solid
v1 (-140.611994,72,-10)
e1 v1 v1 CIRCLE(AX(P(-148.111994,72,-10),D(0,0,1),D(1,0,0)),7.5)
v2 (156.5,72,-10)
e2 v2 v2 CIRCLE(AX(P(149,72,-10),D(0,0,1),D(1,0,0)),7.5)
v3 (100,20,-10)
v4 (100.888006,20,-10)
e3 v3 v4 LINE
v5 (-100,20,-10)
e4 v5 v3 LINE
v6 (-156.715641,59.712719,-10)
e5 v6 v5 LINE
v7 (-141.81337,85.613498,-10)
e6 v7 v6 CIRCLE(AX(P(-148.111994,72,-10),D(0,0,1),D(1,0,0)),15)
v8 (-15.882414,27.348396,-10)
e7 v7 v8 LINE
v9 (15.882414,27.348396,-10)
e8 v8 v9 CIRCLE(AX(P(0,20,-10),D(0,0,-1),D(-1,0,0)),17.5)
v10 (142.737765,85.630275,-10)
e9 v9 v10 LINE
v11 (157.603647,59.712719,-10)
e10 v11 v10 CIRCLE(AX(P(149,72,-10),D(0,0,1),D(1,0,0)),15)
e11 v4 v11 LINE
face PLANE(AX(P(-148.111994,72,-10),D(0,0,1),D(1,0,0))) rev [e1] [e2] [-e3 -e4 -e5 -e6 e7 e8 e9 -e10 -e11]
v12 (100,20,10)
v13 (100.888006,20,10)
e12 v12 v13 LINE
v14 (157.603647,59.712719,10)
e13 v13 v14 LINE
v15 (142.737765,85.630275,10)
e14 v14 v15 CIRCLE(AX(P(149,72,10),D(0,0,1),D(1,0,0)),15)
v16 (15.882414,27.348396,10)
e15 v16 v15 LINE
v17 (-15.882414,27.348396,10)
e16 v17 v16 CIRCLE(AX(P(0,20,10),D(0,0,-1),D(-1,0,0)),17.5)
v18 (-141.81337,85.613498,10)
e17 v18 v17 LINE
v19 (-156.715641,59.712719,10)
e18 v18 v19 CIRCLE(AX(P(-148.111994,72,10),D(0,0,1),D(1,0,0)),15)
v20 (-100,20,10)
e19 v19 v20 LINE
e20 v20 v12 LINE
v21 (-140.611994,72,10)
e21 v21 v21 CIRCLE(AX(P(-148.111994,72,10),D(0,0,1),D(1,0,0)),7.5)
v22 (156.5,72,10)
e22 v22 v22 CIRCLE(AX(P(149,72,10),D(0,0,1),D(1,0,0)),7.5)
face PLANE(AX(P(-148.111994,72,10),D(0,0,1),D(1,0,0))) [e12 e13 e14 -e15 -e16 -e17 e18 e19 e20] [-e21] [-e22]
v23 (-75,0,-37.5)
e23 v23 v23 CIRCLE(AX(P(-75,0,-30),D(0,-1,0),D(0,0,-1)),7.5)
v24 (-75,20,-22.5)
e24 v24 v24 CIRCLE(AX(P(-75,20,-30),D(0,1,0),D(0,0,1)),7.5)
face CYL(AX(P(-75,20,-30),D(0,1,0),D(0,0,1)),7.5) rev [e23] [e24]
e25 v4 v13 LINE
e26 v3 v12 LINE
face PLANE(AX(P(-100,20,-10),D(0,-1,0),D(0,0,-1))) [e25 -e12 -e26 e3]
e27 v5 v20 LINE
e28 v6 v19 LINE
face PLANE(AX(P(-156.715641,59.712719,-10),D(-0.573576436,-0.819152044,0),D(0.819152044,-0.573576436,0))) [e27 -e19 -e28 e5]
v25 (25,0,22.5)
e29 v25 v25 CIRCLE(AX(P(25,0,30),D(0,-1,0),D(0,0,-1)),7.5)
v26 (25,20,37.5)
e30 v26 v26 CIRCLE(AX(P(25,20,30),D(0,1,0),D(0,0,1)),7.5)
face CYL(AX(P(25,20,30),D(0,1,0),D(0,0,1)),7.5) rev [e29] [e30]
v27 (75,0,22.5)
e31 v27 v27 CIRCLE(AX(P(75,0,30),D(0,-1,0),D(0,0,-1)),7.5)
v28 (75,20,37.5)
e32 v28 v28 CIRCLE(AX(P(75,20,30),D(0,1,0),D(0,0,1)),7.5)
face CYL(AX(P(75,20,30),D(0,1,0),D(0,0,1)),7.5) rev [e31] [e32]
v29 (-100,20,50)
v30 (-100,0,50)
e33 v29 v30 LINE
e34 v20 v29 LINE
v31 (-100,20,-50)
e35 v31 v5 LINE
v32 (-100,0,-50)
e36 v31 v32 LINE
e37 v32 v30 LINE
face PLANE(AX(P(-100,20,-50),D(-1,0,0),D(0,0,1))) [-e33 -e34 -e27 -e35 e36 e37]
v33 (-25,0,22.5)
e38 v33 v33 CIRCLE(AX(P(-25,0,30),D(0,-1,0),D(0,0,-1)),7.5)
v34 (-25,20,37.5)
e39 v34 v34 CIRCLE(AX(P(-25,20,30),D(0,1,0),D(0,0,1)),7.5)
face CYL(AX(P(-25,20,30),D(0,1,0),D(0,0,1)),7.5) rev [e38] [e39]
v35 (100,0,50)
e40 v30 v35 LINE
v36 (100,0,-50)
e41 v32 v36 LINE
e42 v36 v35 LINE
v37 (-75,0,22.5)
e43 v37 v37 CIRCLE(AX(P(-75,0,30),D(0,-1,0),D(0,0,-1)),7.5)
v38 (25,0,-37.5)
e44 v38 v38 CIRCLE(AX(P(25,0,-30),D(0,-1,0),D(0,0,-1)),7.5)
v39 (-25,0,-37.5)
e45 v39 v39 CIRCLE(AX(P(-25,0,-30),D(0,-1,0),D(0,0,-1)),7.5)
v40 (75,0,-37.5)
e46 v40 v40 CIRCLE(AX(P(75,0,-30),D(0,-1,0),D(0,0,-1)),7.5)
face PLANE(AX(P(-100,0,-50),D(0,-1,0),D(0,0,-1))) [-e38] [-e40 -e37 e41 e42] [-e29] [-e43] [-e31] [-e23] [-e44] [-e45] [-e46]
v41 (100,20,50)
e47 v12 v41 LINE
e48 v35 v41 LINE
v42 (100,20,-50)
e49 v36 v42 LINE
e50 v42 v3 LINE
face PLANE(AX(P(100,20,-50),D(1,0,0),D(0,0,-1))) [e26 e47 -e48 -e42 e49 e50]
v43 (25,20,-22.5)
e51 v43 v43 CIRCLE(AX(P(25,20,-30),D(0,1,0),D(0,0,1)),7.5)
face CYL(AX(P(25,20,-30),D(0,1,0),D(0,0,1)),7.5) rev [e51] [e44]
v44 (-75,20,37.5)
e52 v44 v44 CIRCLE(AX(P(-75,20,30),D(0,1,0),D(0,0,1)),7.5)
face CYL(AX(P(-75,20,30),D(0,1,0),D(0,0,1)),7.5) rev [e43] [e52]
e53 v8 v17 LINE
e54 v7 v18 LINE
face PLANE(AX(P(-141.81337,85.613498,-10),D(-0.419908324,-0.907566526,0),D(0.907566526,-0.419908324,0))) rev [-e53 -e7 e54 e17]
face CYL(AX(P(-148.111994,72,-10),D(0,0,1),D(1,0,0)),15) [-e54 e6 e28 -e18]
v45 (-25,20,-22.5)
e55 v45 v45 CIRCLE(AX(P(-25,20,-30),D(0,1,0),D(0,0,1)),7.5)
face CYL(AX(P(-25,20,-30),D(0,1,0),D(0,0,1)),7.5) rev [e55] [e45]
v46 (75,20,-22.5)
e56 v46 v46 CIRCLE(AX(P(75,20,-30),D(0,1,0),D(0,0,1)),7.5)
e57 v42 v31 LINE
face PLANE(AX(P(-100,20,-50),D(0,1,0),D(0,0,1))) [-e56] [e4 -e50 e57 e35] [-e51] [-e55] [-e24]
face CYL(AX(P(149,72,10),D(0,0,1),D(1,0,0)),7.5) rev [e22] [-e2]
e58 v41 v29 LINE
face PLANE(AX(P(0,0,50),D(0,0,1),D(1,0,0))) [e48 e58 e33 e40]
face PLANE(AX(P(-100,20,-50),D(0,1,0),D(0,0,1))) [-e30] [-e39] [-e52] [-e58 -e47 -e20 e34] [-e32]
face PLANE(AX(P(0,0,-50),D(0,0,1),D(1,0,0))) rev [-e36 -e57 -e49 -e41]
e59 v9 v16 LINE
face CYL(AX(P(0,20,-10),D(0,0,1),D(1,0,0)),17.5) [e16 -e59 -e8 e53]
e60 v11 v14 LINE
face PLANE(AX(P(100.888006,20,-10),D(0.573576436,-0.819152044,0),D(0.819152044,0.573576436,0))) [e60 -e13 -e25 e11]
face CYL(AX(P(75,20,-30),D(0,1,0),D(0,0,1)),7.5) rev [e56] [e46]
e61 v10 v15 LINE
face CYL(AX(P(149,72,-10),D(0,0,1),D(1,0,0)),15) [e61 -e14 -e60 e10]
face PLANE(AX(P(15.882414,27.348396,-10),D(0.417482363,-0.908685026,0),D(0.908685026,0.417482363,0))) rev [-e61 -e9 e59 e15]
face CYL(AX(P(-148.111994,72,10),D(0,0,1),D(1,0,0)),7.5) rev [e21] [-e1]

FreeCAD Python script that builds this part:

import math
import FreeCAD as App
import Part
import Sketcher
from FreeCAD import Vector
Q = App.Units.Quantity

doc = App.newDocument("Part")
body = doc.addObject("PartDesign::Body", "Body")

# Sketch on XY plane
sketch1 = body.newObject("Sketcher::SketchObject", "Sketch")
sketch1.AttachmentSupport = (doc.getObject("XY_Plane"), [""])
sketch1.MapMode = "FlatFace"
sketch1.addGeometry([
    Part.LineSegment(Vector(-100, 20, 0), Vector(-100, 0, 0)),
    Part.LineSegment(Vector(-100, 0, 0), Vector(100, 0, 0)),
    Part.LineSegment(Vector(100, 0, 0), Vector(100, 20, 0)),
    Part.LineSegment(Vector(100, 20, 0), Vector(-100, 20, 0)),
], False)
sketch1.addConstraint([
    Sketcher.Constraint("Coincident", 0, 2, 1, 1),
    Sketcher.Constraint("Coincident", 1, 2, 2, 1),
    Sketcher.Constraint("Coincident", 2, 2, 3, 1),
    Sketcher.Constraint("Coincident", 3, 2, 0, 1),
    Sketcher.Constraint("Vertical", 0),
    Sketcher.Constraint("Horizontal", 1),
    Sketcher.Constraint("Vertical", 2),
    Sketcher.Constraint("Horizontal", 3),
    Sketcher.Constraint("Symmetric", 0, 2, 1, 2, -1, 1),
    Sketcher.Constraint("DistanceX", 1, 1, 1, 2, 200.0),
    Sketcher.Constraint("DistanceY", 0, 2, 0, 1, 20.0),
])
pad1 = body.newObject("PartDesign::Pad", "Pad")
pad1.Profile = sketch1
pad1.Type = "TwoLengths"
pad1.Length = 50
pad1.Length2 = 50

# Sketch on XY plane
sketch2 = body.newObject("Sketcher::SketchObject", "Sketch001")
sketch2.AttachmentSupport = (doc.getObject("XY_Plane"), [""])
sketch2.MapMode = "FlatFace"
sketch2.addGeometry([
    Part.LineSegment(Vector(-16, 27, 0), Vector(-142, 86, 0)),  # 0
    Part.ArcOfCircle(Part.Circle(Vector(-148, 72, 0), Vector(0, 0, 1), 15), math.radians(65), math.radians(235)),  # 1
    Part.LineSegment(Vector(-157, 60, 0), Vector(-100, 20, 0)),  # 2
    Part.LineSegment(Vector(-100, 20, 0), Vector(101, 20, 0)),  # 3
    Part.LineSegment(Vector(101, 20, 0), Vector(158, 60, 0)),  # 4
    Part.ArcOfCircle(Part.Circle(Vector(149, 72, 0), Vector(0, 0, 1), 15), math.radians(-55), math.radians(115)),  # 5
    Part.LineSegment(Vector(143, 86, 0), Vector(16, 27, 0)),  # 6
    Part.ArcOfCircle(Part.Circle(Vector(0, 20, 0), Vector(0, 0, 1), 18), math.radians(25), math.radians(155)),  # 7
], False)
sketch2.addConstraint([
    Sketcher.Constraint("Tangent", 0, 2, 1, 1),
    Sketcher.Constraint("Tangent", 1, 2, 2, 1),
    Sketcher.Constraint("Coincident", 2, 2, 3, 1),
    Sketcher.Constraint("Coincident", 3, 2, 4, 1),
    Sketcher.Constraint("Tangent", 4, 2, 5, 1),
    Sketcher.Constraint("Tangent", 5, 2, 6, 1),
    Sketcher.Constraint("Coincident", 6, 2, 7, 1),
    Sketcher.Constraint("Coincident", 7, 2, 0, 1),
    Sketcher.Constraint("Horizontal", 3),
    Sketcher.Constraint("Equal", 1, 5),
    Sketcher.Constraint("Symmetric", 6, 2, 7, 2, -2),
    Sketcher.Constraint("Horizontal", 1, 3, 5, 3),
    Sketcher.Constraint("Horizontal", 7, 3, 2, 2),
    Sketcher.Constraint("Horizontal", 1, 2, 4, 2),
    Sketcher.Constraint("Radius", 1, 15.0),
    Sketcher.Constraint("Radius", 7, 17.5),
    Sketcher.Constraint("Angle", 2, Q("-35 deg")),
    Sketcher.Constraint("DistanceY", -1, 1, 1, 3, 72.0),
    Sketcher.Constraint("DistanceX", -1, 1, 5, 3, 149.0),
    Sketcher.Constraint("DistanceY", -1, 1, 7, 3, 20.0),
    Sketcher.Constraint("DistanceX", 2, 2, -1, 1, 100.0),
    Sketcher.Constraint("Distance", 0, 138.756721),
])
pad2 = body.newObject("PartDesign::Pad", "Pad001")
pad2.Profile = sketch2
pad2.Type = "TwoLengths"
pad2.Length = 10
pad2.Length2 = 10

# Sketch on XY plane
sketch3 = body.newObject("Sketcher::SketchObject", "Sketch002")
sketch3.AttachmentSupport = (doc.getObject("XY_Plane"), [""])
sketch3.MapMode = "FlatFace"
sketch3.AttachmentOffset = App.Placement(Vector(0, 0, 10), App.Rotation())
sketch3.addGeometry([
    Part.Circle(Vector(-148, 72, 0), Vector(0, 0, 1), 8),
    Part.Circle(Vector(149, 72, 0), Vector(0, 0, 1), 8),
], False)
sketch3.addConstraint([
    Sketcher.Constraint("Equal", 0, 1),
    Sketcher.Constraint("Horizontal", 0, 3, 1, 3),
    Sketcher.Constraint("Diameter", 0, 15.0),
    Sketcher.Constraint("DistanceY", -1, 1, 0, 3, 72.0),
    Sketcher.Constraint("DistanceX", -1, 1, 1, 3, 149.0),
    Sketcher.Constraint("DistanceX", 0, 3, -1, 1, 148.111994),
])
doc.recompute()
hole = body.newObject("PartDesign::Hole", "Hole")
hole.Profile = sketch3
hole.ThreadType = "None"
hole.Diameter = 15
hole.DepthType = "ThroughAll"

# Sketch on XZ plane
sketch4 = body.newObject("Sketcher::SketchObject", "Sketch003")
sketch4.AttachmentSupport = (doc.getObject("XZ_Plane"), [""])
sketch4.MapMode = "FlatFace"
sketch4.AttachmentOffset = App.Placement(Vector(0, 0, -20), App.Rotation())
sketch4.addGeometry(Part.Circle(Vector(75, 30, 0), Vector(0, 0, 1), 8), False)
sketch4.addConstraint([
    Sketcher.Constraint("Diameter", 0, 15.0),
    Sketcher.Constraint("DistanceX", -1, 1, 0, 3, 75.0),
    Sketcher.Constraint("DistanceY", -1, 1, 0, 3, 30.0),
])
doc.recompute()
hole2 = body.newObject("PartDesign::Hole", "Hole001")
hole2.Profile = sketch4
hole2.ThreadType = "None"
hole2.Diameter = 15
hole2.DepthType = "ThroughAll"
hole2.Reversed = True
doc.recompute()

linearpattern = body.newObject("PartDesign::LinearPattern", "LinearPattern")
linearpattern.Originals = [hole2]
linearpattern.Direction = (doc.getObject("X_Axis"), [""])
linearpattern.Mode = "offset"
linearpattern.Offset = 50
linearpattern.Occurrences = 4
linearpattern.Reversed = True
body.Tip = linearpattern
doc.recompute()

mirrored = body.newObject("PartDesign::Mirrored", "Mirrored")
mirrored.Originals = [hole2]
mirrored.MirrorPlane = (doc.getObject("XY_Plane"), [""])
body.Tip = mirrored

# Sketch on XZ plane
sketch5 = body.newObject("Sketcher::SketchObject", "Sketch004")
sketch5.AttachmentSupport = (doc.getObject("XZ_Plane"), [""])
sketch5.MapMode = "FlatFace"
sketch5.AttachmentOffset = App.Placement(Vector(0, 0, -20), App.Rotation())
sketch5.addGeometry(Part.Circle(Vector(25, -30, 0), Vector(0, 0, 1), 8), False)
sketch5.addConstraint([
    Sketcher.Constraint("Diameter", 0, 15.0),
    Sketcher.Constraint("DistanceX", -1, 1, 0, 3, 25.0),
    Sketcher.Constraint("DistanceY", 0, 3, -1, 1, 30.0),
])
doc.recompute()
hole3 = body.newObject("PartDesign::Hole", "Hole002")
hole3.Profile = sketch5
hole3.ThreadType = "None"
hole3.Diameter = 15
hole3.DepthType = "ThroughAll"
hole3.Reversed = True

# Sketch on XZ plane
sketch6 = body.newObject("Sketcher::SketchObject", "Sketch005")
sketch6.AttachmentSupport = (doc.getObject("XZ_Plane"), [""])
sketch6.MapMode = "FlatFace"
sketch6.AttachmentOffset = App.Placement(Vector(0, 0, -20), App.Rotation())
sketch6.addGeometry(Part.Circle(Vector(-25, -30, 0), Vector(0, 0, 1), 8), False)
sketch6.addConstraint([
    Sketcher.Constraint("Diameter", 0, 15.0),
    Sketcher.Constraint("DistanceX", 0, 3, -1, 1, 25.0),
    Sketcher.Constraint("DistanceY", 0, 3, -1, 1, 30.0),
])
doc.recompute()
hole4 = body.newObject("PartDesign::Hole", "Hole003")
hole4.Profile = sketch6
hole4.ThreadType = "None"
hole4.Diameter = 15
hole4.DepthType = "ThroughAll"
hole4.Reversed = True

# Sketch on XZ plane
sketch7 = body.newObject("Sketcher::SketchObject", "Sketch006")
sketch7.AttachmentSupport = (doc.getObject("XZ_Plane"), [""])
sketch7.MapMode = "FlatFace"
sketch7.AttachmentOffset = App.Placement(Vector(0, 0, -20), App.Rotation())
sketch7.addGeometry(Part.Circle(Vector(-75, -30, 0), Vector(0, 0, 1), 8), False)
sketch7.addConstraint([
    Sketcher.Constraint("Diameter", 0, 15.0),
    Sketcher.Constraint("DistanceX", 0, 3, -1, 1, 75.0),
    Sketcher.Constraint("DistanceY", 0, 3, -1, 1, 30.0),
])
doc.recompute()
hole5 = body.newObject("PartDesign::Hole", "Hole004")
hole5.Profile = sketch7
hole5.ThreadType = "None"
hole5.Diameter = 15
hole5.DepthType = "ThroughAll"
hole5.Reversed = True

doc.recompute()
